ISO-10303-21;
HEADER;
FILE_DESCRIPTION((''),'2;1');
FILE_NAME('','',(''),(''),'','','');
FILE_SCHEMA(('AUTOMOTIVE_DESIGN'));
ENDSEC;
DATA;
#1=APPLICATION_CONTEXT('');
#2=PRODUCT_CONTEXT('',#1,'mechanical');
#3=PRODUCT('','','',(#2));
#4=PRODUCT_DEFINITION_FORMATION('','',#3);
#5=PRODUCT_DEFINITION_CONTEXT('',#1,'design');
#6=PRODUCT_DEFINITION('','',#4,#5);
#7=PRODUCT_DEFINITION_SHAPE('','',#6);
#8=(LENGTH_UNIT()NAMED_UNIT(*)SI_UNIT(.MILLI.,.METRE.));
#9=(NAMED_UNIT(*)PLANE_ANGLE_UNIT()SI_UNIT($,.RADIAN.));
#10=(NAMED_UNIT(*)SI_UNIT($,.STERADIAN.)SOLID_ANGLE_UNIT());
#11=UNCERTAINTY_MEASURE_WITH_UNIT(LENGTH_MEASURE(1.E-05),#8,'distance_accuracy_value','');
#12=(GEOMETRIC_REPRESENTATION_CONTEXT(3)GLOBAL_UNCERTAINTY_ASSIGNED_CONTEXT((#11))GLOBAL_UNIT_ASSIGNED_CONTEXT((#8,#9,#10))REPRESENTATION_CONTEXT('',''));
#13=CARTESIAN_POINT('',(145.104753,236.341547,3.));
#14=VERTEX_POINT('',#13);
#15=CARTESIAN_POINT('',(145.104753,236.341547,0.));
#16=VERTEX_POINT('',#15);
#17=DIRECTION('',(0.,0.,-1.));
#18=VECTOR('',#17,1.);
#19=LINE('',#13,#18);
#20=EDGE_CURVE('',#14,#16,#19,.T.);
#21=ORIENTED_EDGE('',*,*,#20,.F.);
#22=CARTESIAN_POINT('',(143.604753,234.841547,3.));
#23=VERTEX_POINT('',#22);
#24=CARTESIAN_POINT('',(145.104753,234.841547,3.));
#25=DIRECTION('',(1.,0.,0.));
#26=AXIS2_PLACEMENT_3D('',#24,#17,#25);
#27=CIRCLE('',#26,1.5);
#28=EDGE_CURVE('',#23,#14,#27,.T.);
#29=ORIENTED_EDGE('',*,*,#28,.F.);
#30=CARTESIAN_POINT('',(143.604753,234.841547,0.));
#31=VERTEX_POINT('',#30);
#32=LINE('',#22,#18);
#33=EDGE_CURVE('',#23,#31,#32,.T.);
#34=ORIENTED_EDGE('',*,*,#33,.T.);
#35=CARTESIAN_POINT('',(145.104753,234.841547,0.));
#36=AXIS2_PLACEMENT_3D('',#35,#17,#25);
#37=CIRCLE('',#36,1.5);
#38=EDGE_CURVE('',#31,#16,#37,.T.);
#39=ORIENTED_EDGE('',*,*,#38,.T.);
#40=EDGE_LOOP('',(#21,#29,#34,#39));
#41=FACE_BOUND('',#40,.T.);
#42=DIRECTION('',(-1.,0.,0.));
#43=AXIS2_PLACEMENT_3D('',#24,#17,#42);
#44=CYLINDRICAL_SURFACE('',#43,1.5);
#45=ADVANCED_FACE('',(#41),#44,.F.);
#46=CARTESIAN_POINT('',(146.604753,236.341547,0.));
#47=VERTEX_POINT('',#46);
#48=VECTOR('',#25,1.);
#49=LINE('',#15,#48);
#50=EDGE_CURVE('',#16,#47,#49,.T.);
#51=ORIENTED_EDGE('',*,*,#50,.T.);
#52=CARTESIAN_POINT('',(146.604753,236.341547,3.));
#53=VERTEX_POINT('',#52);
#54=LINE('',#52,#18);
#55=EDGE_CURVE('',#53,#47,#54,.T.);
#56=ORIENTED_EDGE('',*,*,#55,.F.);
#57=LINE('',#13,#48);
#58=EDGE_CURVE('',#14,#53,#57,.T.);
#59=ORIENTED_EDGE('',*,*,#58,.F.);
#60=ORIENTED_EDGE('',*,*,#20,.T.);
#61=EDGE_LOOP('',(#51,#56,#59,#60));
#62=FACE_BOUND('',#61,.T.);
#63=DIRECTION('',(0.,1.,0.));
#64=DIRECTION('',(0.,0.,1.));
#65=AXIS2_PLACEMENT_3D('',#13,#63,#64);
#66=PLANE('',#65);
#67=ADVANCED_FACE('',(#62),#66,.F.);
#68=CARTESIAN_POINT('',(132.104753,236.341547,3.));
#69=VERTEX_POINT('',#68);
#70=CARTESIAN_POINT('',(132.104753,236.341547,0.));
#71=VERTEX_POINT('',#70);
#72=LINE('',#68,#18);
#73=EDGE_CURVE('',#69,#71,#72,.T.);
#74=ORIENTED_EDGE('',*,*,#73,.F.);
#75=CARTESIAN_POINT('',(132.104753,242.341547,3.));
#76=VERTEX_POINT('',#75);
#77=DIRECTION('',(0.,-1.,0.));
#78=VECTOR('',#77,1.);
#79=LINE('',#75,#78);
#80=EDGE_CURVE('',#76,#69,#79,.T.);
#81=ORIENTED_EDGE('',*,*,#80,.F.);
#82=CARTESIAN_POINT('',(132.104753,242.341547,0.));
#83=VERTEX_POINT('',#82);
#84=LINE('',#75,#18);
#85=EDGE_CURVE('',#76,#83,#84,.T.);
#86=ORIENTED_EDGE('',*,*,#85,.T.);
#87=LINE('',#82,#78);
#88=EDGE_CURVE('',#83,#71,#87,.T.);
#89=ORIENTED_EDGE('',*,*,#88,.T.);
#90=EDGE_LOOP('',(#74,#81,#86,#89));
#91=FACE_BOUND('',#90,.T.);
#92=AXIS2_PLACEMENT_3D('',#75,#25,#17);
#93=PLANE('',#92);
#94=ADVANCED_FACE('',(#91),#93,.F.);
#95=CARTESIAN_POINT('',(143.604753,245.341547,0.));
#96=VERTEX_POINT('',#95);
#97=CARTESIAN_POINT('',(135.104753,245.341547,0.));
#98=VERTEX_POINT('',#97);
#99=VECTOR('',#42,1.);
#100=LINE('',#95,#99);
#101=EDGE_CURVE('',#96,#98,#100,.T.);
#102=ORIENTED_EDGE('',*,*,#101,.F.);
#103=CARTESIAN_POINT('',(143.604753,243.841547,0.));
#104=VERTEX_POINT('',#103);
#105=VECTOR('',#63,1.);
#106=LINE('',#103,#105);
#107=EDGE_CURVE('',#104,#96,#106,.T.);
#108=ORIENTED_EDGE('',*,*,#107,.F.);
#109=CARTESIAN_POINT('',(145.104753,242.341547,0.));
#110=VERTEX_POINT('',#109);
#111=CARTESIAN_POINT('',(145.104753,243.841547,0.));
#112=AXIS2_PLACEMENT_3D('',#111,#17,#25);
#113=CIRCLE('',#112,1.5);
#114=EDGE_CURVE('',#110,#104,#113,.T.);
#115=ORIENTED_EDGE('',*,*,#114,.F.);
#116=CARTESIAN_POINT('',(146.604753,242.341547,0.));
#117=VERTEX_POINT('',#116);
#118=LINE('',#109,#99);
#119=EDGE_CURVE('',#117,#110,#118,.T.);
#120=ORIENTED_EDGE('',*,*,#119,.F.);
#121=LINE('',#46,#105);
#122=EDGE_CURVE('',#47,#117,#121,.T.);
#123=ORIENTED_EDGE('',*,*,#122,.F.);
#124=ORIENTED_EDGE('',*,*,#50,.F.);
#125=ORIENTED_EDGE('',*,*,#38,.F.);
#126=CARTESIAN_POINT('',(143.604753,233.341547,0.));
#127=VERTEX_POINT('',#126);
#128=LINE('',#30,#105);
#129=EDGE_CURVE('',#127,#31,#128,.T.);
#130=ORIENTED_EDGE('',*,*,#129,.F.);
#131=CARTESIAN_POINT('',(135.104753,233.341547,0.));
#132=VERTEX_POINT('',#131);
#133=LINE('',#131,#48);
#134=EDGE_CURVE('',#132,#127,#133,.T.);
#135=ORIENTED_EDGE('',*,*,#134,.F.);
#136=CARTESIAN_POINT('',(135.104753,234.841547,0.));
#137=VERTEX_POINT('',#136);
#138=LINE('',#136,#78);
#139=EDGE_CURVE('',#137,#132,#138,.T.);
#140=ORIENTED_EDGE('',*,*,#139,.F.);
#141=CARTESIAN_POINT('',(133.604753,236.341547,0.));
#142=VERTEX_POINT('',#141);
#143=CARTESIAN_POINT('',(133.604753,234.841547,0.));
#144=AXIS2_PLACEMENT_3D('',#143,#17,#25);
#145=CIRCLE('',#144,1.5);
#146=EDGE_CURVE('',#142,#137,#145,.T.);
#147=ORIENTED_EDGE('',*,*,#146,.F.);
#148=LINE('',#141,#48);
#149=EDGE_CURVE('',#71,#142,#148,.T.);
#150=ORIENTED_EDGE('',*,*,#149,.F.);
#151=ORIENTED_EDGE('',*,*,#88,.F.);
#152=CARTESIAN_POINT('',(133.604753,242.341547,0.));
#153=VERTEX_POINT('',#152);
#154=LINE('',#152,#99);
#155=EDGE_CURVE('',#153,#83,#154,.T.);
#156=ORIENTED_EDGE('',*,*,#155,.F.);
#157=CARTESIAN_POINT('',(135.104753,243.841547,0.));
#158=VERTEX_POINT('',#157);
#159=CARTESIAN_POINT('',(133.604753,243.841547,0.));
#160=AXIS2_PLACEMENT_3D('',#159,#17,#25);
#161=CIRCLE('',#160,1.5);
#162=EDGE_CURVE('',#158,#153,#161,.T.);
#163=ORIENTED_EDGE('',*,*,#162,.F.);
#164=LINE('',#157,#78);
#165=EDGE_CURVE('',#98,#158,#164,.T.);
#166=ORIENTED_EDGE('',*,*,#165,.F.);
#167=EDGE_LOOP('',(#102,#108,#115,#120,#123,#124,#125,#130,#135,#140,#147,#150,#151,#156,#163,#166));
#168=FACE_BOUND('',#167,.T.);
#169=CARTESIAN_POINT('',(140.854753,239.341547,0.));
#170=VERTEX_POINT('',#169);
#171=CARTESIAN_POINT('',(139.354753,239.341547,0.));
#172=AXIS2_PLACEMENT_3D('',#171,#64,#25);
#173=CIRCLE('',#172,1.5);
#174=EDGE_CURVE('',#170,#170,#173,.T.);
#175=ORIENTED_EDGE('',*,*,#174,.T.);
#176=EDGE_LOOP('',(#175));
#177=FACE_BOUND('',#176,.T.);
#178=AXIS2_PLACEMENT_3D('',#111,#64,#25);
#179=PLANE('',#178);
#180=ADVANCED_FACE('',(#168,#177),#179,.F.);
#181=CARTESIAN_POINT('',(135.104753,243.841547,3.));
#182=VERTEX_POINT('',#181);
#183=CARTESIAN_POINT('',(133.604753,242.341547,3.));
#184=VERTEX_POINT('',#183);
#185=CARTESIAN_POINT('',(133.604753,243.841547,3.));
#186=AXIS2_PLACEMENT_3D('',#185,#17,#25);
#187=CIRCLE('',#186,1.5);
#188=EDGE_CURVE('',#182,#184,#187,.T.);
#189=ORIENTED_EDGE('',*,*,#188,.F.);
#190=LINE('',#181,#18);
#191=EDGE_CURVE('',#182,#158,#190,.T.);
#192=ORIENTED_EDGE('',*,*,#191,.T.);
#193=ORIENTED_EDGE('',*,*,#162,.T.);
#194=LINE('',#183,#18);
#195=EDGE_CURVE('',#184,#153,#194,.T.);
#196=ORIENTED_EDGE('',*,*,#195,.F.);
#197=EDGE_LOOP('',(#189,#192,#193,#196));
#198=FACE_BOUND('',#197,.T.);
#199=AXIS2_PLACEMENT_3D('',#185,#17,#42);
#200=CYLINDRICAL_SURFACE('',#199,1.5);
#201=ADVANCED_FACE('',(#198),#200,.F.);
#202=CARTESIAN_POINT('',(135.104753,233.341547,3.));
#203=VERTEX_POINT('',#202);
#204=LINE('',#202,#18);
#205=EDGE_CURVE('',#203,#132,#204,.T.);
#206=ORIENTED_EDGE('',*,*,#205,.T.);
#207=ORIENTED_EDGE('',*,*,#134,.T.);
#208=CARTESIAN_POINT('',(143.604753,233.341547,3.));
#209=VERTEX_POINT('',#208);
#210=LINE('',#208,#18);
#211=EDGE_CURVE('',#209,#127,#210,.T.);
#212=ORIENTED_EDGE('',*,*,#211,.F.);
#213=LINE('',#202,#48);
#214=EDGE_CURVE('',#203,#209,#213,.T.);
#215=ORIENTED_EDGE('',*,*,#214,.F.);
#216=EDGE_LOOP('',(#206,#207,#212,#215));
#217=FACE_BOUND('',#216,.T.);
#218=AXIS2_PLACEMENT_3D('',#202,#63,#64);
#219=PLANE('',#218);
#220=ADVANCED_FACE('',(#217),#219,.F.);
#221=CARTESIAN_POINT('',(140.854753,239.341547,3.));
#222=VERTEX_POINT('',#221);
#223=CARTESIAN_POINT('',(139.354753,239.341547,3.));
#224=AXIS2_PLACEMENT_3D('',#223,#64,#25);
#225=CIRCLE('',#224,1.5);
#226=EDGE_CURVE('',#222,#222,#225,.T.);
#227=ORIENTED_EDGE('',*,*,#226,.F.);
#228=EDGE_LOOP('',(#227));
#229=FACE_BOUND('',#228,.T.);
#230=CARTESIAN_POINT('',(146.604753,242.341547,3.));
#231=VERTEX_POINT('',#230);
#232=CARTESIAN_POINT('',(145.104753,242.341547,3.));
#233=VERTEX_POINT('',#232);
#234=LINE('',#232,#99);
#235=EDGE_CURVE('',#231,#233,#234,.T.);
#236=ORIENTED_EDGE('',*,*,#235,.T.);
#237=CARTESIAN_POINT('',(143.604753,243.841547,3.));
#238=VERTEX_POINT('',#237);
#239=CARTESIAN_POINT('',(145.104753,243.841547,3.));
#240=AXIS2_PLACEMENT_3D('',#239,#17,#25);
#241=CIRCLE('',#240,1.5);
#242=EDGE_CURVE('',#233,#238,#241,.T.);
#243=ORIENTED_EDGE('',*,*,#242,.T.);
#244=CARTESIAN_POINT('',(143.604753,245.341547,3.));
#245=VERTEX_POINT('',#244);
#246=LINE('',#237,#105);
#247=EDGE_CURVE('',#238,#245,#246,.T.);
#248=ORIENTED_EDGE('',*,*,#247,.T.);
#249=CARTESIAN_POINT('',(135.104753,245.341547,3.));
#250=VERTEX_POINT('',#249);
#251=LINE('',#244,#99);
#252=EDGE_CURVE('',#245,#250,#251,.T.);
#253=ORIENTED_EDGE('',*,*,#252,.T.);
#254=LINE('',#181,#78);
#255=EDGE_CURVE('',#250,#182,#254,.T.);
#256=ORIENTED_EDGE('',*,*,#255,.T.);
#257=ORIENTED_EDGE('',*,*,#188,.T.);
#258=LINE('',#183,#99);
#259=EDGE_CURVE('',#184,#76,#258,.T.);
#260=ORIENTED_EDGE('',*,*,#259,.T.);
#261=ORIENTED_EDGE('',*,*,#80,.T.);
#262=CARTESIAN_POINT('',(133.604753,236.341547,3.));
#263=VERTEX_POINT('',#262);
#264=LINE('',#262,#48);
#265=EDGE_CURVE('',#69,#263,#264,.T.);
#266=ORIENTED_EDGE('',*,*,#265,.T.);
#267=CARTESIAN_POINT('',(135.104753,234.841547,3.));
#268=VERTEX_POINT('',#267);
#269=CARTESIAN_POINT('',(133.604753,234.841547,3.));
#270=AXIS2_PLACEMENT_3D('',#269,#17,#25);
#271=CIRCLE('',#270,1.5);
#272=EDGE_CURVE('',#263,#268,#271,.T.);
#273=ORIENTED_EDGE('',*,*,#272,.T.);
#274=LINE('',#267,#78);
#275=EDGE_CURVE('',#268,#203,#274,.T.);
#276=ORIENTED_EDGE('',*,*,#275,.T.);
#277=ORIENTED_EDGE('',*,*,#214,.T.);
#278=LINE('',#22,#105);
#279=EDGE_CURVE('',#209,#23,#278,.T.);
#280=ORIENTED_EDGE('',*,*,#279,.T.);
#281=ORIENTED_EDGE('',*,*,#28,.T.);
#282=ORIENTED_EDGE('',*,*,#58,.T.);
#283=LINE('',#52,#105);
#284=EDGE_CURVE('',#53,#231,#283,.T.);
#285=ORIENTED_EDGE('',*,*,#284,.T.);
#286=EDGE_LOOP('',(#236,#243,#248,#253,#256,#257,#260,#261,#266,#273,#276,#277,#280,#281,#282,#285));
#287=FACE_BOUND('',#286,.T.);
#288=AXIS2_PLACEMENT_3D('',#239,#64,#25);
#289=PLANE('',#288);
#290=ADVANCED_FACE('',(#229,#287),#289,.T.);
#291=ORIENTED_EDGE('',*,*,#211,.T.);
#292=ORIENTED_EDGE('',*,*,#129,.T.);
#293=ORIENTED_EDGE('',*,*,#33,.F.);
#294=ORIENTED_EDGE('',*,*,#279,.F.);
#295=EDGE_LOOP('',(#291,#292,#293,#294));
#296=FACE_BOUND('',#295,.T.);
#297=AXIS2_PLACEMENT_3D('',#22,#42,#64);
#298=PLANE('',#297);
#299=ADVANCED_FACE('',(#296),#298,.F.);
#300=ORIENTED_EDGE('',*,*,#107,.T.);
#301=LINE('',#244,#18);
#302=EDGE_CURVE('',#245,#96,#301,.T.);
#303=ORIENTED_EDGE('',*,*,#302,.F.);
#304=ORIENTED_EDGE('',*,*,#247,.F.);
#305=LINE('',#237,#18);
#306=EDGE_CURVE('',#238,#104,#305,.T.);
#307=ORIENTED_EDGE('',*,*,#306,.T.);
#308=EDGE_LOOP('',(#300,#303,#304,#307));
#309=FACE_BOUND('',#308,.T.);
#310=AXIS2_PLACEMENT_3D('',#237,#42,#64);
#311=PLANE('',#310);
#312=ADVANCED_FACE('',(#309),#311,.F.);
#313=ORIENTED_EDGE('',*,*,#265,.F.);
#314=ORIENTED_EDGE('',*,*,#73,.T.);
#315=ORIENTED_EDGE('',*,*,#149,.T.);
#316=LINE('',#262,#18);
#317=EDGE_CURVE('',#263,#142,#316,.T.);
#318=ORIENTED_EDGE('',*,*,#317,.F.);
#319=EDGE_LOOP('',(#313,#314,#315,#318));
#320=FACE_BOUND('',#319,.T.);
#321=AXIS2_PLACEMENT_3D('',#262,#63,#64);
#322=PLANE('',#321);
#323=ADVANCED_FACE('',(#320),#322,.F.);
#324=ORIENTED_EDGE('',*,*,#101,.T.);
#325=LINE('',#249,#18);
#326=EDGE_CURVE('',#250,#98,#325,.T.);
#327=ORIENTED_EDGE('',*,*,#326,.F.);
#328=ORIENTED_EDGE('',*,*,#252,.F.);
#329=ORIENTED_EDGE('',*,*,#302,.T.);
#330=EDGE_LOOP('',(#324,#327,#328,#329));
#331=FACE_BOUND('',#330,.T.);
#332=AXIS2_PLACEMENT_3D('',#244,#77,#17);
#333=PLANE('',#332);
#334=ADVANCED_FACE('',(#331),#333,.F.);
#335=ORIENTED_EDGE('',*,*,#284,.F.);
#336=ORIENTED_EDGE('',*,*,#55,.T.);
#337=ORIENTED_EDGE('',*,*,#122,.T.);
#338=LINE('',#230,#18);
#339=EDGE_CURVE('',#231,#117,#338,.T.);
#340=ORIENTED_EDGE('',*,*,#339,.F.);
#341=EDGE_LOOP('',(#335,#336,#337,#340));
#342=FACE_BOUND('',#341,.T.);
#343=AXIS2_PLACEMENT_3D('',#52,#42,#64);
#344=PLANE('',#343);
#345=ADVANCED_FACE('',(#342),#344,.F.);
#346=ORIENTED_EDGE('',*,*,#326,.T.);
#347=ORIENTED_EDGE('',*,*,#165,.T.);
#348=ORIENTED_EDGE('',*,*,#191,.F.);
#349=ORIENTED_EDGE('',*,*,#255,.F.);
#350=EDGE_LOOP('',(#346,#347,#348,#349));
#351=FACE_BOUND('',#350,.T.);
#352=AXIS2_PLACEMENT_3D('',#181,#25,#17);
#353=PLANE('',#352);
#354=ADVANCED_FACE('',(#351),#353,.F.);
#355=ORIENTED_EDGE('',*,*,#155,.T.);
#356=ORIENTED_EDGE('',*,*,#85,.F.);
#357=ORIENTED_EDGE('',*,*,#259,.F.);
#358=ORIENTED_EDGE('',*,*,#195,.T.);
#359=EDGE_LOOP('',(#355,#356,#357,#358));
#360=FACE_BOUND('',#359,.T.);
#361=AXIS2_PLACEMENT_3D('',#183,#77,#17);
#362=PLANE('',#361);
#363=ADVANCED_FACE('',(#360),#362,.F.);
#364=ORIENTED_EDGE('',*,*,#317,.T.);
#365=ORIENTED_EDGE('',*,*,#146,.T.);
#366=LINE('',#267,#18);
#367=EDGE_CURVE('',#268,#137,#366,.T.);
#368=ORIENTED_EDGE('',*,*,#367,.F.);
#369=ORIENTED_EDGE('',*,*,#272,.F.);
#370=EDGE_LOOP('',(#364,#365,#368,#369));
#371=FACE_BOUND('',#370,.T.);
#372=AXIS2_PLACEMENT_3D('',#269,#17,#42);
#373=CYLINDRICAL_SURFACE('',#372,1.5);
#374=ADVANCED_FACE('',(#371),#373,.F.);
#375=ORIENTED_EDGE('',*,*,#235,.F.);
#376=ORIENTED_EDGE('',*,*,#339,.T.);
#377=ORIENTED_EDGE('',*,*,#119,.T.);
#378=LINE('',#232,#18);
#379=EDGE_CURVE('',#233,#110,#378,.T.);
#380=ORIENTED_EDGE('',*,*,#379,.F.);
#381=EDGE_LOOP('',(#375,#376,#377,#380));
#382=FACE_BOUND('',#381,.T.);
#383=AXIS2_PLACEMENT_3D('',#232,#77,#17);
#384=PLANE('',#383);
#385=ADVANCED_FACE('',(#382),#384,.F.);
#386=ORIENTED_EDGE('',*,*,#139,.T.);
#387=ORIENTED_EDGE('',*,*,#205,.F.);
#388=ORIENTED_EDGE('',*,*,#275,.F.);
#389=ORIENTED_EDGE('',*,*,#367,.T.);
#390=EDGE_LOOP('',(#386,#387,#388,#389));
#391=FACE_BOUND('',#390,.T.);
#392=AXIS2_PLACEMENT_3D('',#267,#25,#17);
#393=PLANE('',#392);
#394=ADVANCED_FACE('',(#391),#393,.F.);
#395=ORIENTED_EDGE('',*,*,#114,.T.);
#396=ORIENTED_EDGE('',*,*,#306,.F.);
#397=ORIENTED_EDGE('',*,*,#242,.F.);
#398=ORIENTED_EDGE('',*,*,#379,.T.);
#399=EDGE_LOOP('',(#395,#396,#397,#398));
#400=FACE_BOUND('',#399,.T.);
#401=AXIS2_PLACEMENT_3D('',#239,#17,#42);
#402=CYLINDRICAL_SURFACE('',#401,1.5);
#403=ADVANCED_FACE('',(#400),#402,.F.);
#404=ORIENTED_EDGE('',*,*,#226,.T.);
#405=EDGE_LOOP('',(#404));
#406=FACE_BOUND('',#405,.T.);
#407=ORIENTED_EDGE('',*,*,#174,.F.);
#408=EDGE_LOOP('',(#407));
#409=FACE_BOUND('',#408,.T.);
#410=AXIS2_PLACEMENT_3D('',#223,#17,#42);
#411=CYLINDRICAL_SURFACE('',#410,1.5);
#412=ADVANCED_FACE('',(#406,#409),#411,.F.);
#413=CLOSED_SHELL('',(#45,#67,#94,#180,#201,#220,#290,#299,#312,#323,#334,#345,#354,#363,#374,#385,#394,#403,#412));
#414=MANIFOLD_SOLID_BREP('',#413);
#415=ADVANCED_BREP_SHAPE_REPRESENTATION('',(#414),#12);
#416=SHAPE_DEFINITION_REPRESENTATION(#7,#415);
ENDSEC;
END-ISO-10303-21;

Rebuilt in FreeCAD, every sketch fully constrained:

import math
import FreeCAD as App
import Part
import Sketcher

V = App.Vector
Q = App.Units.Quantity

doc = App.newDocument("Part")
body = doc.addObject("PartDesign::Body", "Body")

sketch1 = body.newObject("Sketcher::SketchObject", "Sketch")
sketch1.AttachmentSupport = (doc.getObject("XY_Plane"), [""])
sketch1.MapMode = "FlatFace"
sketch1.addGeometry([
    Part.LineSegment(V(132.1, 242.3, 0), V(132.1, 236.3, 0)),
    Part.LineSegment(V(132.1, 236.3, 0), V(133.6, 236.3, 0)),
    Part.ArcOfCircle(Part.Circle(V(133.6, 234.8, 0), V(0, 0, 1), 1.5), math.radians(0), math.radians(90)),
    Part.LineSegment(V(135.1, 234.8, 0), V(135.1, 233.3, 0)),
    Part.LineSegment(V(135.1, 233.3, 0), V(143.6, 233.3, 0)),
    Part.LineSegment(V(143.6, 233.3, 0), V(143.6, 234.8, 0)),
    Part.ArcOfCircle(Part.Circle(V(145.1, 234.8, 0), V(0, 0, 1), 1.5), math.radians(90), math.radians(180)),
    Part.LineSegment(V(145.1, 236.3, 0), V(146.6, 236.3, 0)),
    Part.LineSegment(V(146.6, 236.3, 0), V(146.6, 242.3, 0)),
    Part.LineSegment(V(146.6, 242.3, 0), V(145.1, 242.3, 0)),
    Part.ArcOfCircle(Part.Circle(V(145.1, 243.8, 0), V(0, 0, 1), 1.5), math.radians(180), math.radians(270)),
    Part.LineSegment(V(143.6, 243.8, 0), V(143.6, 245.3, 0)),
    Part.LineSegment(V(143.6, 245.3, 0), V(135.1, 245.3, 0)),
    Part.LineSegment(V(135.1, 245.3, 0), V(135.1, 243.8, 0)),
    Part.ArcOfCircle(Part.Circle(V(133.6, 243.8, 0), V(0, 0, 1), 1.5), math.radians(-90), math.radians(0)),
    Part.LineSegment(V(133.6, 242.3, 0), V(132.1, 242.3, 0)),
    Part.Circle(V(139.4, 239.3, 0), V(0, 0, 1), 1.5),
], False)
sketch1.addConstraint([
    Sketcher.Constraint("Coincident", 0, 2, 1, 1),
    Sketcher.Constraint("Tangent", 1, 2, 2, 2),
    Sketcher.Constraint("Tangent", 2, 1, 3, 1),
    Sketcher.Constraint("Coincident", 3, 2, 4, 1),
    Sketcher.Constraint("Coincident", 4, 2, 5, 1),
    Sketcher.Constraint("Tangent", 5, 2, 6, 2),
    Sketcher.Constraint("Tangent", 6, 1, 7, 1),
    Sketcher.Constraint("Coincident", 7, 2, 8, 1),
    Sketcher.Constraint("Coincident", 8, 2, 9, 1),
    Sketcher.Constraint("Tangent", 9, 2, 10, 2),
    Sketcher.Constraint("Tangent", 10, 1, 11, 1),
    Sketcher.Constraint("Coincident", 11, 2, 12, 1),
    Sketcher.Constraint("Coincident", 12, 2, 13, 1),
    Sketcher.Constraint("Tangent", 13, 2, 14, 2),
    Sketcher.Constraint("Tangent", 14, 1, 15, 1),
    Sketcher.Constraint("Coincident", 15, 2, 0, 1),
    Sketcher.Constraint("Vertical", 0),
    Sketcher.Constraint("Horizontal", 1),
    Sketcher.Constraint("Vertical", 3),
    Sketcher.Constraint("Horizontal", 4),
    Sketcher.Constraint("Vertical", 5),
    Sketcher.Constraint("Horizontal", 7),
    Sketcher.Constraint("Vertical", 8),
    Sketcher.Constraint("Horizontal", 9),
    Sketcher.Constraint("Vertical", 11),
    Sketcher.Constraint("Horizontal", 12),
    Sketcher.Constraint("Vertical", 13),
    Sketcher.Constraint("Horizontal", 15),
    Sketcher.Constraint("Equal", 2, 6),
    Sketcher.Constraint("Equal", 6, 10),
    Sketcher.Constraint("Equal", 10, 14),
    Sketcher.Constraint("Equal", 14, 16),
    Sketcher.Constraint("Horizontal", 2, 3, 6, 3),
    Sketcher.Constraint("Horizontal", 10, 3, 14, 3),
    Sketcher.Constraint("Vertical", 6, 3, 10, 3),
    Sketcher.Constraint("Vertical", 2, 3, 14, 3),
    Sketcher.Constraint("Equal", 1, 7),
    Sketcher.Constraint("Equal", 15, 3),
    Sketcher.Constraint("Equal", 5, 11),
    Sketcher.Constraint("Diameter", 16, Q("3 mm")),
    Sketcher.Constraint("DistanceY", 0, 2, 0, 1, Q("6 mm")),
    Sketcher.Constraint("DistanceX", 1, 1, 1, 2, Q("1.5 mm")),
    Sketcher.Constraint("DistanceX", 4, 1, 4, 2, Q("8.5 mm")),
    Sketcher.Constraint("DistanceY", 0, 2, 16, 3, Q("3 mm")),
    Sketcher.Constraint("DistanceX", 16, 3, 10, 3, Q("5.75 mm")),
    Sketcher.Constraint("DistanceX", -1, 1, 2, 3, Q("133.604753 mm")),
    Sketcher.Constraint("DistanceY", -1, 1, 2, 3, Q("234.841547 mm")),
])
pad1 = body.newObject("PartDesign::Pad", "Pad")
pad1.Profile = sketch1
pad1.Length = 3

doc.recompute()
